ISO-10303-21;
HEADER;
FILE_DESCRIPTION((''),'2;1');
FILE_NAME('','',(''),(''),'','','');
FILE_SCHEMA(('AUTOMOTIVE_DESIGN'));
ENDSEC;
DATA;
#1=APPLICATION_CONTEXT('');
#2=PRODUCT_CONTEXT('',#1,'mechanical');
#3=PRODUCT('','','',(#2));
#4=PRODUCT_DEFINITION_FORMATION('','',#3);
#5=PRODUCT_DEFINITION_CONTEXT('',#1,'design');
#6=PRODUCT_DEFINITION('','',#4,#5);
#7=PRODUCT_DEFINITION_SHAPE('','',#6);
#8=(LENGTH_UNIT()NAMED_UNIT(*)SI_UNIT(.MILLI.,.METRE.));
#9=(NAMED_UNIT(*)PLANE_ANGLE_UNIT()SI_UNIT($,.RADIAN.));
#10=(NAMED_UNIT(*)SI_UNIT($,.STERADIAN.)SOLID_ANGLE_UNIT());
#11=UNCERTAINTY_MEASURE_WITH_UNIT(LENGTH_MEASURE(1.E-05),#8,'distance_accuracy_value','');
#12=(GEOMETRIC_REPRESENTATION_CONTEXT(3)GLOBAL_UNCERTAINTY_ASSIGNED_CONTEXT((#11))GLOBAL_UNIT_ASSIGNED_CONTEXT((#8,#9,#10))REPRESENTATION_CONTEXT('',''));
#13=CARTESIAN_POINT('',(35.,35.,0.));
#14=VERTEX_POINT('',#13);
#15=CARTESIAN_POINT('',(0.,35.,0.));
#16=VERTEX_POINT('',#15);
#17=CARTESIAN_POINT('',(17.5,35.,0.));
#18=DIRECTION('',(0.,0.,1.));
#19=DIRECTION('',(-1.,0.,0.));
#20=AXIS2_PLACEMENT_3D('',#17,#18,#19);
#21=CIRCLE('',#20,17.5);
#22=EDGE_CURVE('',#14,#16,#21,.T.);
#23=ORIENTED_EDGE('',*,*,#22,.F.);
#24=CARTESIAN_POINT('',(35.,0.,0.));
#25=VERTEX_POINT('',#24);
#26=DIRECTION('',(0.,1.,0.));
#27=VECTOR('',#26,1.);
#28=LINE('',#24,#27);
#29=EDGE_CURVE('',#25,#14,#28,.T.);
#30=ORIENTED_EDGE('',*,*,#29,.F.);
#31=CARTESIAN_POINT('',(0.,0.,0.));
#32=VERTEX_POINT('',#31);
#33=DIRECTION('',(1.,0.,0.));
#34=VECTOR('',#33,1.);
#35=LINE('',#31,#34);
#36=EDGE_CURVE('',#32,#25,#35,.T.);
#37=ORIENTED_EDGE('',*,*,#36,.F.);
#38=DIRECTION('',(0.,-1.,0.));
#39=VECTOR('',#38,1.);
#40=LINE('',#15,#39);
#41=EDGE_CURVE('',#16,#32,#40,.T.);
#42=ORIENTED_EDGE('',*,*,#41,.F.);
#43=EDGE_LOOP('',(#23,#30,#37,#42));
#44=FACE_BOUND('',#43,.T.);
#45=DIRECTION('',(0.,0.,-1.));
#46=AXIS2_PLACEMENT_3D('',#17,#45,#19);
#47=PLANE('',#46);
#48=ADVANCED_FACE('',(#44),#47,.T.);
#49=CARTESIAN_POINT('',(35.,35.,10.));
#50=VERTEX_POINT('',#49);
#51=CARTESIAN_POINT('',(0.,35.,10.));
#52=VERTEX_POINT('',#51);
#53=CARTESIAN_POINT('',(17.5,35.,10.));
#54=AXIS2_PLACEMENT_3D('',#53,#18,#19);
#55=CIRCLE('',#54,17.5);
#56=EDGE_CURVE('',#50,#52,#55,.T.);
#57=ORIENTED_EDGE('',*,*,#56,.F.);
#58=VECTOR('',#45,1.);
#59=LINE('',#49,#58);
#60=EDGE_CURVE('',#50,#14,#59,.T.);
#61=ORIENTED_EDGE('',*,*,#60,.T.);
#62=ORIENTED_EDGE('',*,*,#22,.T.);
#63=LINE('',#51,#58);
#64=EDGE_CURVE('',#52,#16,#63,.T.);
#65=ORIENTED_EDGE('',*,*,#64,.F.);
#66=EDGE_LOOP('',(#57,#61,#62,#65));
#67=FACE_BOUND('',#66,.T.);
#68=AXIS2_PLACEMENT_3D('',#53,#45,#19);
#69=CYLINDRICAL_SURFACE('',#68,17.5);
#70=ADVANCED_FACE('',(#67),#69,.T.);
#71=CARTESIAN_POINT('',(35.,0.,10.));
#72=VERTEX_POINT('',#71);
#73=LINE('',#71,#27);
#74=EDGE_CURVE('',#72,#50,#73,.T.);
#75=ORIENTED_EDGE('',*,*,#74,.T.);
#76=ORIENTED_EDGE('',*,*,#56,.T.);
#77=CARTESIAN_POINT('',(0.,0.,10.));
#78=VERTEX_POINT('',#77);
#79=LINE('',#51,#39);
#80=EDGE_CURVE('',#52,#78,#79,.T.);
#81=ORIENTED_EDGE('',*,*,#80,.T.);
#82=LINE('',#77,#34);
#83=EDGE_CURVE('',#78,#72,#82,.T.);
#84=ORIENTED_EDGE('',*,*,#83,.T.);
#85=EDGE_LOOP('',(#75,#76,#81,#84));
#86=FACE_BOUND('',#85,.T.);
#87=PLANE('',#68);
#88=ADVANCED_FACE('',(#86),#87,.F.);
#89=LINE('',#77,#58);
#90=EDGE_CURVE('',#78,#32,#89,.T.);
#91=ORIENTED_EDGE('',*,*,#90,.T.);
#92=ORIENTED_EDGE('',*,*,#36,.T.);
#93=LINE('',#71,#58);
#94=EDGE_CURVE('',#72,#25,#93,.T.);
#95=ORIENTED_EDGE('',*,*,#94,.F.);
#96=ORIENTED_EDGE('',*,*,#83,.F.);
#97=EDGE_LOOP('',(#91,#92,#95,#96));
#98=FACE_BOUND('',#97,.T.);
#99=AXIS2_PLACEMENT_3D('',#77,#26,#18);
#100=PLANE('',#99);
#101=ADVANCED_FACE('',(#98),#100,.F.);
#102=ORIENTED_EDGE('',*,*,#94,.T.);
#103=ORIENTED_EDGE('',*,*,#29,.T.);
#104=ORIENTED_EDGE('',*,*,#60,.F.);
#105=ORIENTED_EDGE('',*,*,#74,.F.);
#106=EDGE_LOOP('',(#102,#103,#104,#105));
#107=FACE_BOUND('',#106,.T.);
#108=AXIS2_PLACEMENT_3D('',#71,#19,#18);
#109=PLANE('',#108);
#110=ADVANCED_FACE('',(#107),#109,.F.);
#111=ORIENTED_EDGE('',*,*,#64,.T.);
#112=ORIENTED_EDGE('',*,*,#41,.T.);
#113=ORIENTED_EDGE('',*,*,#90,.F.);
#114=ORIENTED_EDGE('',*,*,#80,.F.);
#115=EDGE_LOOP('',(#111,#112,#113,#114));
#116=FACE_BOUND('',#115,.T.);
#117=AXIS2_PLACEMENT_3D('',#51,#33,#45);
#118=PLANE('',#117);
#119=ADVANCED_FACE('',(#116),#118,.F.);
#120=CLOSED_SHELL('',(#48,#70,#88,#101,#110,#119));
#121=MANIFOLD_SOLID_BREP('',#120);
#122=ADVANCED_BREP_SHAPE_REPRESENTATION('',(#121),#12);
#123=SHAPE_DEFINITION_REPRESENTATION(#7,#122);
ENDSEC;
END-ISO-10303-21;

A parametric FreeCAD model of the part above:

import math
import FreeCAD as App
import Part
import Sketcher

doc = App.newDocument("Part")
body = doc.addObject("PartDesign::Body", "Body")

# Sketch on XY plane
sketch1 = body.newObject("Sketcher::SketchObject", "Sketch")
sketch1.AttachmentSupport = (doc.getObject("XY_Plane"), [""])
sketch1.MapMode = "FlatFace"
sketch1.addGeometry([
    Part.LineSegment(App.Vector(0, 0, 0), App.Vector(35, 0, 0)),
    Part.LineSegment(App.Vector(35, 0, 0), App.Vector(35, 35, 0)),
    Part.ArcOfCircle(Part.Circle(App.Vector(18, 35, 0), App.Vector(0, 0, 1), 18), math.radians(0), math.radians(180)),
    Part.LineSegment(App.Vector(0, 35, 0), App.Vector(0, 0, 0)),
], False)
sketch1.addConstraint([
    Sketcher.Constraint("Coincident", 0, 2, 1, 1),
    Sketcher.Constraint("Tangent", 1, 2, 2, 1),
    Sketcher.Constraint("Tangent", 2, 2, 3, 1),
    Sketcher.Constraint("Coincident", 3, 2, 0, 1),
    Sketcher.Constraint("Horizontal", 0),
    Sketcher.Constraint("Vertical", 1),
    Sketcher.Constraint("Vertical", 3),
    Sketcher.Constraint("Coincident", 3, 2, -1, 1),
    Sketcher.Constraint("Equal", 0, 1),
    Sketcher.Constraint("Radius", 2, 17.5),
])
pad1 = body.newObject("PartDesign::Pad", "Pad")
pad1.Profile = sketch1
pad1.Length = 10

doc.recompute()
